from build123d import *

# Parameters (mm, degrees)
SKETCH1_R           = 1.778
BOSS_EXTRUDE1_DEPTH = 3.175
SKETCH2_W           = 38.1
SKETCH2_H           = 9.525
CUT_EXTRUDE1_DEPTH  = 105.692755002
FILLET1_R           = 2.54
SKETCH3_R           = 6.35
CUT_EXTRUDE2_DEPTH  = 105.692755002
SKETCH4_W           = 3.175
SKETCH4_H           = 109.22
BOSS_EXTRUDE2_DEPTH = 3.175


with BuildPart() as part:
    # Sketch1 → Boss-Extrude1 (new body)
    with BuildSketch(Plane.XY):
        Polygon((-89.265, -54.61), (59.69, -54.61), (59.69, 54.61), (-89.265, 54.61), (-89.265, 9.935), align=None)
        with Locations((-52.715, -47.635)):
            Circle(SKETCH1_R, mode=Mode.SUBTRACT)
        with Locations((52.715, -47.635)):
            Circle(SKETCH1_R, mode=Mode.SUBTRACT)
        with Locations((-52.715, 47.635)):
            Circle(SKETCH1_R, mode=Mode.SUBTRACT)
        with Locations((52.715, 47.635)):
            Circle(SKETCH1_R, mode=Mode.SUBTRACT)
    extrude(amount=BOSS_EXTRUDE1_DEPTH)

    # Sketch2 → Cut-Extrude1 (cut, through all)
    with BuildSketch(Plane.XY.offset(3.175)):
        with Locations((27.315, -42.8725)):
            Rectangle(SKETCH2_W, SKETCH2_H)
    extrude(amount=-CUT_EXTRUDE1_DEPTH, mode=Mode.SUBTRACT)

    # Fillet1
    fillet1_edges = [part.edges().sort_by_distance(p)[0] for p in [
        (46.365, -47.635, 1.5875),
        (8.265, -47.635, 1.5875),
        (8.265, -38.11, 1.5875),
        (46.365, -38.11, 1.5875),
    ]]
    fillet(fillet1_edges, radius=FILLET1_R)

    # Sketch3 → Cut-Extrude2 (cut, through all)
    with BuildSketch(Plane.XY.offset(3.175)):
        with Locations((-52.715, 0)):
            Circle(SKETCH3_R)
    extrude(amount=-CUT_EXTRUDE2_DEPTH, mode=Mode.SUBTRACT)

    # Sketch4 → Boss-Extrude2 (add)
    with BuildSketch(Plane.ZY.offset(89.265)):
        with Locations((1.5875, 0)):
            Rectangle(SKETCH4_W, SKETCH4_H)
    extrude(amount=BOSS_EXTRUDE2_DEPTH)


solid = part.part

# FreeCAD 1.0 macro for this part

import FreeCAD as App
import Part
import Sketcher
Q = App.Units.Quantity


def edges_at(feature, points):
    """Names of the edges that pass closest to the given points."""
    edges = feature.Shape.Edges
    near = lambda p: min(range(len(edges)), key=lambda i: edges[i].distToShape(Part.Vertex(*p))[0])
    return sorted({f"Edge{near(p) + 1}" for p in points})

doc = App.newDocument("Part")
params = doc.addObject("Spreadsheet::Sheet", "Params")
for row, (alias, value) in enumerate([
    ("sketch1_diameter", "0.14 in"),
    ("sketch1_height", "4.3 in"),
    ("pad1_length", "0.125 in"),
    ("sketch2_width", "1.5 in"),
    ("sketch2_height", "0.375 in"),
    ("fillet_radius", "0.1 in"),
    ("sketch3_diameter", "0.5 in"),
    ("sketch4_width", "4.3 in"),
    ("sketch4_height", "0.125 in"),
    ("pad2_length", "0.125 in"),
], start=1):
    params.set(f"A{row}", alias)
    params.set(f"B{row}", "=" + value)
    params.setAlias(f"B{row}", alias)

body = doc.addObject("PartDesign::Body", "Body")

sketch1 = body.newObject("Sketcher::SketchObject", "Sketch")
sketch1.AttachmentSupport = (doc.getObject("XY_Plane"), [""])
sketch1.MapMode = "FlatFace"
sketch1.addGeometry(Part.LineSegment(App.Vector(-89.265, -54.61, 0), App.Vector(59.69, -54.61, 0)), False)
sketch1.addGeometry(Part.LineSegment(App.Vector(59.69, -54.61, 0), App.Vector(59.69, 54.61, 0)), False)
sketch1.addGeometry(Part.LineSegment(App.Vector(59.69, 54.61, 0), App.Vector(-89.265, 54.61, 0)), False)
sketch1.addGeometry(Part.LineSegment(App.Vector(-89.265, 54.61, 0), App.Vector(-89.265, -54.61, 0)), False)
sketch1.addGeometry(Part.Circle(App.Vector(-52.715, -47.635, 0), App.Vector(0, 0, 1), 1.778), False)
sketch1.addGeometry(Part.Circle(App.Vector(52.715, -47.635, 0), App.Vector(0, 0, 1), 1.778), False)
sketch1.addGeometry(Part.Circle(App.Vector(-52.715, 47.635, 0), App.Vector(0, 0, 1), 1.778), False)
sketch1.addGeometry(Part.Circle(App.Vector(52.715, 47.635, 0), App.Vector(0, 0, 1), 1.778), False)
sketch1.addConstraint(Sketcher.Constraint("Coincident", 0, 2, 1, 1))
sketch1.addConstraint(Sketcher.Constraint("Coincident", 1, 2, 2, 1))
sketch1.addConstraint(Sketcher.Constraint("Coincident", 2, 2, 3, 1))
sketch1.addConstraint(Sketcher.Constraint("Coincident", 3, 2, 0, 1))
sketch1.addConstraint(Sketcher.Constraint("Horizontal", 0))
sketch1.addConstraint(Sketcher.Constraint("Vertical", 1))
sketch1.addConstraint(Sketcher.Constraint("Horizontal", 2))
sketch1.addConstraint(Sketcher.Constraint("Vertical", 3))
sketch1.addConstraint(Sketcher.Constraint("Equal", 4, 5))
sketch1.addConstraint(Sketcher.Constraint("Equal", 5, 6))
sketch1.addConstraint(Sketcher.Constraint("Equal", 6, 7))
sketch1.addConstraint(Sketcher.Constraint("Symmetric", 5, 3, 6, 3, -1, 1))
sketch1.addConstraint(Sketcher.Constraint("Symmetric", 4, 3, 7, 3, -1, 1))
sketch1.addConstraint(Sketcher.Constraint("Symmetric", 4, 3, 5, 3, -2))
sketch1.addConstraint(Sketcher.Constraint("Diameter", 4, Q("0.14 in")))
sketch1.addConstraint(Sketcher.Constraint("DistanceY", 1, 1, 1, 2, Q("4.3 in")))
sketch1.addConstraint(Sketcher.Constraint("DistanceX", -1, 1, 0, 2, Q("2.35 in")))
sketch1.addConstraint(Sketcher.Constraint("DistanceY", 0, 2, -1, 1, Q("2.15 in")))
sketch1.addConstraint(Sketcher.Constraint("DistanceX", 0, 1, 0, 2, Q("148.955 mm")))
sketch1.addConstraint(Sketcher.Constraint("DistanceX", 4, 3, -1, 1, Q("52.715 mm")))
sketch1.addConstraint(Sketcher.Constraint("DistanceY", 4, 3, -1, 1, Q("47.635 mm")))
sketch1.setExpression("Constraints[14]", "Params.sketch1_diameter")
sketch1.setExpression("Constraints[15]", "Params.sketch1_height")
pad1 = body.newObject("PartDesign::Pad", "Pad")
pad1.Profile = sketch1
pad1.setExpression("Length", "Params.pad1_length")

sketch2 = body.newObject("Sketcher::SketchObject", "Sketch001")
sketch2.AttachmentSupport = (doc.getObject("XY_Plane"), [""])
sketch2.MapMode = "FlatFace"
sketch2.AttachmentOffset = App.Placement(App.Vector(0, 0, 0.125 * 25.4), App.Rotation())
sketch2.addGeometry(Part.LineSegment(App.Vector(8.265, -38.11, 0), App.Vector(8.265, -47.635, 0)), False)
sketch2.addGeometry(Part.LineSegment(App.Vector(8.265, -47.635, 0), App.Vector(46.365, -47.635, 0)), False)
sketch2.addGeometry(Part.LineSegment(App.Vector(46.365, -47.635, 0), App.Vector(46.365, -38.11, 0)), False)
sketch2.addGeometry(Part.LineSegment(App.Vector(46.365, -38.11, 0), App.Vector(8.265, -38.11, 0)), False)
sketch2.addConstraint(Sketcher.Constraint("Coincident", 0, 2, 1, 1))
sketch2.addConstraint(Sketcher.Constraint("Coincident", 1, 2, 2, 1))
sketch2.addConstraint(Sketcher.Constraint("Coincident", 2, 2, 3, 1))
sketch2.addConstraint(Sketcher.Constraint("Coincident", 3, 2, 0, 1))
sketch2.addConstraint(Sketcher.Constraint("Vertical", 0))
sketch2.addConstraint(Sketcher.Constraint("Horizontal", 1))
sketch2.addConstraint(Sketcher.Constraint("Vertical", 2))
sketch2.addConstraint(Sketcher.Constraint("Horizontal", 3))
sketch2.addConstraint(Sketcher.Constraint("DistanceX", 1, 1, 1, 2, Q("1.5 in")))
sketch2.addConstraint(Sketcher.Constraint("DistanceY", 0, 2, 0, 1, Q("0.375 in")))
sketch2.addConstraint(Sketcher.Constraint("DistanceX", -1, 1, 0, 2, Q("8.265 mm")))
sketch2.addConstraint(Sketcher.Constraint("DistanceY", 0, 2, -1, 1, Q("47.635 mm")))
sketch2.setExpression("Constraints[8]", "Params.sketch2_width")
sketch2.setExpression("Constraints[9]", "Params.sketch2_height")
pocket1 = body.newObject("PartDesign::Pocket", "Pocket")
pocket1.Profile = sketch2
pocket1.Type = "ThroughAll"
doc.recompute()

fillet = body.newObject("PartDesign::Fillet", "Fillet")
fillet.Base = (pocket1, edges_at(pocket1, [
    (46.365, -47.635, 1.587),
    (8.265, -47.635, 1.587),
    (8.265, -38.11, 1.587),
    (46.365, -38.11, 1.587),
]))
fillet.setExpression("Radius", "Params.fillet_radius")

sketch3 = body.newObject("Sketcher::SketchObject", "Sketch002")
sketch3.AttachmentSupport = (doc.getObject("XY_Plane"), [""])
sketch3.MapMode = "FlatFace"
sketch3.AttachmentOffset = App.Placement(App.Vector(0, 0, 0.125 * 25.4), App.Rotation())
sketch3.addGeometry(Part.Circle(App.Vector(-52.715, 0, 0), App.Vector(0, 0, 1), 6.35), False)
sketch3.addConstraint(Sketcher.Constraint("PointOnObject", 0, 3, -1))
sketch3.addConstraint(Sketcher.Constraint("Diameter", 0, Q("0.5 in")))
sketch3.addConstraint(Sketcher.Constraint("DistanceX", 0, 3, -1, 1, Q("52.715 mm")))
sketch3.setExpression("Constraints[1]", "Params.sketch3_diameter")
pocket2 = body.newObject("PartDesign::Pocket", "Pocket001")
pocket2.Profile = sketch3
pocket2.Type = "ThroughAll"

sketch4 = body.newObject("Sketcher::SketchObject", "Sketch003")
sketch4.AttachmentSupport = (doc.getObject("YZ_Plane"), [""])
sketch4.MapMode = "FlatFace"
sketch4.AttachmentOffset = App.Placement(App.Vector(0, 0, -89.265), App.Rotation())
sketch4.addGeometry(Part.LineSegment(App.Vector(54.61, 0, 0), App.Vector(-54.61, 0, 0)), False)
sketch4.addGeometry(Part.LineSegment(App.Vector(-54.61, 0, 0), App.Vector(-54.61, 3.175, 0)), False)
sketch4.addGeometry(Part.LineSegment(App.Vector(-54.61, 3.175, 0), App.Vector(54.61, 3.175, 0)), False)
sketch4.addGeometry(Part.LineSegment(App.Vector(54.61, 3.175, 0), App.Vector(54.61, 0, 0)), False)
sketch4.addConstraint(Sketcher.Constraint("Coincident", 0, 2, 1, 1))
sketch4.addConstraint(Sketcher.Constraint("Coincident", 1, 2, 2, 1))
sketch4.addConstraint(Sketcher.Constraint("Coincident", 2, 2, 3, 1))
sketch4.addConstraint(Sketcher.Constraint("Coincident", 3, 2, 0, 1))
sketch4.addConstraint(Sketcher.Constraint("Horizontal", 0))
sketch4.addConstraint(Sketcher.Constraint("Vertical", 1))
sketch4.addConstraint(Sketcher.Constraint("Horizontal", 2))
sketch4.addConstraint(Sketcher.Constraint("Vertical", 3))
sketch4.addConstraint(Sketcher.Constraint("Symmetric", 0, 2, 3, 2, -1, 1))
sketch4.addConstraint(Sketcher.Constraint("DistanceX", 0, 2, 0, 1, Q("4.3 in")))
sketch4.addConstraint(Sketcher.Constraint("DistanceY", 1, 1, 1, 2, Q("0.125 in")))
sketch4.setExpression("Constraints[9]", "Params.sketch4_width")
sketch4.setExpression("Constraints[10]", "Params.sketch4_height")
pad2 = body.newObject("PartDesign::Pad", "Pad001")
pad2.Profile = sketch4
pad2.setExpression("Length", "Params.pad2_length")
pad2.Reversed = True

doc.recompute()
